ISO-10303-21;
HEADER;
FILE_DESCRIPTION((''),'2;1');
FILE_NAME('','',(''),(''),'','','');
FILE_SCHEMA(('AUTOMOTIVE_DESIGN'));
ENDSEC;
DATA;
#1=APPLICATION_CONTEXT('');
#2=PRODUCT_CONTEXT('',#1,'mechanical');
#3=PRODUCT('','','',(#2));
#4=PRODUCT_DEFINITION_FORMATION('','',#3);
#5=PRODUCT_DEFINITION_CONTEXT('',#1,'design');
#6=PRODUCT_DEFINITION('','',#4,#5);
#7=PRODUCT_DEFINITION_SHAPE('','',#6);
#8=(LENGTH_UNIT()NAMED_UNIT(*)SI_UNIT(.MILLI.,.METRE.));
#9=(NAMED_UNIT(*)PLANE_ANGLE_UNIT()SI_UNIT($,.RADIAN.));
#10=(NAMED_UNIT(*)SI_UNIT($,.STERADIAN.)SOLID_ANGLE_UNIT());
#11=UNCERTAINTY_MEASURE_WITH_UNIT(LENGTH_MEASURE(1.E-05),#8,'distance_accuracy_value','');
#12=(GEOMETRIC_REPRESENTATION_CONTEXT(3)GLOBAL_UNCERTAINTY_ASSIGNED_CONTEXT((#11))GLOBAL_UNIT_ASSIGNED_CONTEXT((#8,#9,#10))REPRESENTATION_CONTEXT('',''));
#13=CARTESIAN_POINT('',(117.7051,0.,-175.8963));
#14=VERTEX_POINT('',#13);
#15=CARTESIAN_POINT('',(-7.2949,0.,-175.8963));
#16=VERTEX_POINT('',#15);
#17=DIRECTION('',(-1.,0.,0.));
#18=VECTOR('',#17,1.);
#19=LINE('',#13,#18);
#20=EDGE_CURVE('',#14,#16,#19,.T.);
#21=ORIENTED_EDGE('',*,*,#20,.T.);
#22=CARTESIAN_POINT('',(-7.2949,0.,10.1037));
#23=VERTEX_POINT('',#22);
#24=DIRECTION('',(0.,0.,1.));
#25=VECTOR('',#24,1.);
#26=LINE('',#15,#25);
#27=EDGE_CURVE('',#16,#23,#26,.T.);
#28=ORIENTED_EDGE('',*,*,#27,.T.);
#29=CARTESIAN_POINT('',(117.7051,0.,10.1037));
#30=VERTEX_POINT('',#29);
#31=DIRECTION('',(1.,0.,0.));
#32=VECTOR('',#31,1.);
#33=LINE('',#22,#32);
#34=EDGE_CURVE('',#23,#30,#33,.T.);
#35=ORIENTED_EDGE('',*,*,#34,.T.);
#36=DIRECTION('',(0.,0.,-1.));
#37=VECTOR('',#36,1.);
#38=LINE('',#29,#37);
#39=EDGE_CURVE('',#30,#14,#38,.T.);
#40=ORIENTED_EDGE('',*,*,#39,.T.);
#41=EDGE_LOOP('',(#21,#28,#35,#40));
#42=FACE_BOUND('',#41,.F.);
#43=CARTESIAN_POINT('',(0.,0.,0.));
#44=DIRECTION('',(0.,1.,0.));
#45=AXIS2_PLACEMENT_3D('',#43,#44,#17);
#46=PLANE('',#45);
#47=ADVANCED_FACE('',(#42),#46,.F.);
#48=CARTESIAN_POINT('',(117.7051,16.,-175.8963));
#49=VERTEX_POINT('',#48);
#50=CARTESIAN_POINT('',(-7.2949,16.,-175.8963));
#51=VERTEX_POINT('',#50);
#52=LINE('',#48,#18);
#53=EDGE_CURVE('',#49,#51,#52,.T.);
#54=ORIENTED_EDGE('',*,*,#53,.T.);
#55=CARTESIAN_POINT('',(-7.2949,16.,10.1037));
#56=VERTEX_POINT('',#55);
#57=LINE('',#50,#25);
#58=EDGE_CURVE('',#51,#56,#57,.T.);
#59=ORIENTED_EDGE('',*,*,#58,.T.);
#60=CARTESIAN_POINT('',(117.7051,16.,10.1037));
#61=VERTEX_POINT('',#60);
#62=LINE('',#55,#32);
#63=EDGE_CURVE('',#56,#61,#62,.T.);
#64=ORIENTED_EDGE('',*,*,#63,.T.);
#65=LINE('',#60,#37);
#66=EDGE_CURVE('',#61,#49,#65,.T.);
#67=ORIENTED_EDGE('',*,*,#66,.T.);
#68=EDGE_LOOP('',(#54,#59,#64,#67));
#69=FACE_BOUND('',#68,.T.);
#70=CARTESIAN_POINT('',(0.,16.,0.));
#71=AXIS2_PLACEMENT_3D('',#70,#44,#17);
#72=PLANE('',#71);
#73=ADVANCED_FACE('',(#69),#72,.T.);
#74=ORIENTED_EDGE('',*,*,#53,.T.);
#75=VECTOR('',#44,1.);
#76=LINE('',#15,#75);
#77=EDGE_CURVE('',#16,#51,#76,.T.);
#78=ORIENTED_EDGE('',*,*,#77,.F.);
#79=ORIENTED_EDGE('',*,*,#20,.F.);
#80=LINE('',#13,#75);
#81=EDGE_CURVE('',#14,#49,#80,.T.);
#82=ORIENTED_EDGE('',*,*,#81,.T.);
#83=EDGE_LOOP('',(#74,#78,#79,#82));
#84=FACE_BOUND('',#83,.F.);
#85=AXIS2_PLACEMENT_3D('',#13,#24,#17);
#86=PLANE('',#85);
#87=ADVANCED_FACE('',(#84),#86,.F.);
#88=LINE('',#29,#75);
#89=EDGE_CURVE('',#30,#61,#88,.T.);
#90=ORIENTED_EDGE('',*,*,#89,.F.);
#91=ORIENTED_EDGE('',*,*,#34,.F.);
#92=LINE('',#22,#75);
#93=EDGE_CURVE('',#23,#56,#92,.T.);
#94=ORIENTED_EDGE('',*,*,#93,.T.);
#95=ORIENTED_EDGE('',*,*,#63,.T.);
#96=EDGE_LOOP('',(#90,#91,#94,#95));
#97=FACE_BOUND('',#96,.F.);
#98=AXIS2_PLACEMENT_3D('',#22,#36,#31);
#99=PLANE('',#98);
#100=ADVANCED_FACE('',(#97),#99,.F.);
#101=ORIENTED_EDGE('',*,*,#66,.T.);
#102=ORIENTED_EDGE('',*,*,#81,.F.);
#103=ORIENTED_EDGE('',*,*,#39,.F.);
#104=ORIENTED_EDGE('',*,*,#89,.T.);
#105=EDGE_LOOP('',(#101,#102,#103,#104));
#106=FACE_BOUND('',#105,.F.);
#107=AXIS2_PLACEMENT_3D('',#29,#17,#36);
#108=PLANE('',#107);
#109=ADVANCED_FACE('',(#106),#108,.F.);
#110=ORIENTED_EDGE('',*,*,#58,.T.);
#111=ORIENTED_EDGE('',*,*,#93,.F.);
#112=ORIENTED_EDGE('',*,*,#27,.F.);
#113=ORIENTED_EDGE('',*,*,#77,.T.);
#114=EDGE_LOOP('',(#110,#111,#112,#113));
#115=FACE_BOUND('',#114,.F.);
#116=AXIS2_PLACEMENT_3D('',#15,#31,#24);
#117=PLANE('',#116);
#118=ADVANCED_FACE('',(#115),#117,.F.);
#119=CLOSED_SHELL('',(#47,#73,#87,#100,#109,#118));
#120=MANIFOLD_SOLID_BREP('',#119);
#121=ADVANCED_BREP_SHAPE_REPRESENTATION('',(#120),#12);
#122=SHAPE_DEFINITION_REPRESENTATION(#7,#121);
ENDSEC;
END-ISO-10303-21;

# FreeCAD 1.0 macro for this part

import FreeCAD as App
import Part
import Sketcher


def add_polygon(sketch, points):
    """Adds a closed chain of lines whose ends are joined by coincident constraints."""
    first, n = sketch.GeometryCount, len(points)
    for a, b in zip(points, points[1:] + points[:1]):
        sketch.addGeometry(Part.LineSegment(App.Vector(*a, 0), App.Vector(*b, 0)), False)
    for i in range(n):
        sketch.addConstraint(Sketcher.Constraint("Coincident", first + i, 2, first + (i + 1) % n, 1))

doc = App.newDocument("Part")
params = doc.addObject("Spreadsheet::Sheet", "Params")
for row, (alias, value) in enumerate([
    ("sketch1_width", "125 mm"),
    ("sketch1_height", "186 mm"),
    ("pad1_length", "16 mm"),
], start=1):
    params.set(f"A{row}", alias)
    params.set(f"B{row}", "=" + value)
    params.setAlias(f"B{row}", alias)

body = doc.addObject("PartDesign::Body", "Body")

# Sketch on XZ plane
sketch1 = doc.addObject("Sketcher::SketchObject", "Sketch")
body.addObject(sketch1)
sketch1.AttachmentSupport = (doc.XZ_Plane, [""])
sketch1.MapMode = "FlatFace"
add_polygon(sketch1, [(-7, -176), (-7, 10), (118, 10), (118, -176)])  # lines 0-3
sketch1.addConstraint([
    Sketcher.Constraint("Vertical", 0),
    Sketcher.Constraint("Horizontal", 1),
    Sketcher.Constraint("Vertical", 2),
    Sketcher.Constraint("Horizontal", 3),
    Sketcher.Constraint("DistanceX", 1, 1, 1, 2, 125.0),
    Sketcher.Constraint("DistanceY", 0, 1, 0, 2, 186.0),
    Sketcher.Constraint("DistanceX", 0, 2, -1, 1, 7.295),
    Sketcher.Constraint("DistanceY", -1, 1, 0, 2, 10.1037),
])
sketch1.setExpression("Constraints[8]", "Params.sketch1_width")
sketch1.setExpression("Constraints[9]", "Params.sketch1_height")
pad1 = doc.addObject("PartDesign::Pad", "Pad")
body.addObject(pad1)
pad1.Profile = sketch1
pad1.setExpression("Length", "Params.pad1_length")
pad1.Reversed = True

doc.recompute()
